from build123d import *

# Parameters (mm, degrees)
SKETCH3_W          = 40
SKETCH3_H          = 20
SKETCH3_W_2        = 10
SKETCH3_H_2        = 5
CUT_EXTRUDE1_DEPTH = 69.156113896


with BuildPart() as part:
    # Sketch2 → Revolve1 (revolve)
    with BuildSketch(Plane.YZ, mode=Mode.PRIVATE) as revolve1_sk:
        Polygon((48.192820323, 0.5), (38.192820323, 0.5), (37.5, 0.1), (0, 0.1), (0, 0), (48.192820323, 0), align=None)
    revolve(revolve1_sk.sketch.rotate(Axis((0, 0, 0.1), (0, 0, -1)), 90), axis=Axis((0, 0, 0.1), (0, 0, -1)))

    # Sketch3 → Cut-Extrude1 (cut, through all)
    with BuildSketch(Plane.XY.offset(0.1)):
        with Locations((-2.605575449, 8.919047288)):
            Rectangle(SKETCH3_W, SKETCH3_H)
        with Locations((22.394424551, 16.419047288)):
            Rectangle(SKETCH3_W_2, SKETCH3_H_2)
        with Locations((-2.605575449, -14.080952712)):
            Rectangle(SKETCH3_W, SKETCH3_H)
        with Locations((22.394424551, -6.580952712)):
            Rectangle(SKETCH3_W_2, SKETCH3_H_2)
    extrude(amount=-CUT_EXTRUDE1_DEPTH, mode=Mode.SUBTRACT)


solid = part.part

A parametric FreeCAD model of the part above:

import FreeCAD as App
import Part
import Sketcher
Q = App.Units.Quantity


def add_polygon(sketch, points):
    """Adds a closed chain of lines whose ends are joined by coincident constraints."""
    first, n = sketch.GeometryCount, len(points)
    for a, b in zip(points, points[1:] + points[:1]):
        sketch.addGeometry(Part.LineSegment(App.Vector(*a, 0), App.Vector(*b, 0)), False)
    for i in range(n):
        sketch.addConstraint(Sketcher.Constraint("Coincident", first + i, 2, first + (i + 1) % n, 1))

doc = App.newDocument("Part")
params = doc.addObject("Spreadsheet::Sheet", "Params")
for row, (alias, value) in enumerate([
    ("sketch1_width", "10 mm"),
    ("sketch1_width2", "37.5 mm"),
    ("sketch1_height", "0.1 mm"),
    ("sketch1_height2", "0.5 mm"),
    ("revolution_angle", "360 deg"),
    ("sketch2_width", "40 mm"),
    ("sketch2_width2", "10 mm"),
    ("sketch2_height", "20 mm"),
    ("sketch2_height2", "15 mm"),
], start=1):
    params.set(f"A{row}", alias)
    params.set(f"B{row}", "=" + value)
    params.setAlias(f"B{row}", alias)

body = doc.addObject("PartDesign::Body", "Body")

sketch1 = body.newObject("Sketcher::SketchObject", "Sketch")
sketch1.AttachmentSupport = (doc.getObject("YZ_Plane"), [""])
sketch1.MapMode = "FlatFace"
add_polygon(sketch1, [(48.19, 0.5), (38.19, 0.5), (37.5, 0.1), (0, 0.1), (0, 0), (48.19, 0)])
sketch1.addConstraint(Sketcher.Constraint("Horizontal", 0))
sketch1.addConstraint(Sketcher.Constraint("Horizontal", 2))
sketch1.addConstraint(Sketcher.Constraint("Vertical", 3))
sketch1.addConstraint(Sketcher.Constraint("Horizontal", 4))
sketch1.addConstraint(Sketcher.Constraint("Vertical", 5))
sketch1.addConstraint(Sketcher.Constraint("Coincident", 3, 2, -1, 1))
sketch1.addConstraint(Sketcher.Constraint("DistanceX", 0, 2, 0, 1, 10.0))
sketch1.addConstraint(Sketcher.Constraint("Angle", 1, Q("-150 deg")))
sketch1.addConstraint(Sketcher.Constraint("DistanceX", 2, 2, 2, 1, 37.5))
sketch1.addConstraint(Sketcher.Constraint("DistanceY", 3, 2, 3, 1, 0.1))
sketch1.addConstraint(Sketcher.Constraint("DistanceY", 5, 1, 5, 2, 0.5))
sketch1.setExpression("Constraints[12]", "Params.sketch1_width")
sketch1.setExpression("Constraints[14]", "Params.sketch1_width2")
sketch1.setExpression("Constraints[15]", "Params.sketch1_height")
sketch1.setExpression("Constraints[16]", "Params.sketch1_height2")
revolution = body.newObject("PartDesign::Revolution", "Revolution")
revolution.Profile = sketch1
revolution.ReferenceAxis = (sketch1, ["V_Axis"])
revolution.setExpression("Angle", "Params.revolution_angle")

sketch2 = body.newObject("Sketcher::SketchObject", "Sketch001")
sketch2.AttachmentSupport = (doc.getObject("XY_Plane"), [""])
sketch2.MapMode = "FlatFace"
sketch2.AttachmentOffset = App.Placement(App.Vector(0, 0, 0.1), App.Rotation())
add_polygon(sketch2, [(-23, 19), (-23, -1), (17, -1), (17, 14), (27, 14), (27, 19)])
add_polygon(sketch2, [(-23, -4), (-23, -24), (17, -24), (17, -9), (27, -9), (27, -4)])
sketch2.addConstraint(Sketcher.Constraint("Vertical", 0))
sketch2.addConstraint(Sketcher.Constraint("Horizontal", 1))
sketch2.addConstraint(Sketcher.Constraint("Vertical", 2))
sketch2.addConstraint(Sketcher.Constraint("Horizontal", 3))
sketch2.addConstraint(Sketcher.Constraint("Vertical", 4))
sketch2.addConstraint(Sketcher.Constraint("Horizontal", 5))
sketch2.addConstraint(Sketcher.Constraint("Vertical", 6))
sketch2.addConstraint(Sketcher.Constraint("Horizontal", 7))
sketch2.addConstraint(Sketcher.Constraint("Vertical", 8))
sketch2.addConstraint(Sketcher.Constraint("Horizontal", 9))
sketch2.addConstraint(Sketcher.Constraint("Vertical", 10))
sketch2.addConstraint(Sketcher.Constraint("Horizontal", 11))
sketch2.addConstraint(Sketcher.Constraint("Vertical", 5, 2, 6, 2))
sketch2.addConstraint(Sketcher.Constraint("Vertical", 2, 2, 7, 2))
sketch2.addConstraint(Sketcher.Constraint("Vertical", 4, 2, 9, 2))
sketch2.addConstraint(Sketcher.Constraint("Equal", 0, 6))
sketch2.addConstraint(Sketcher.Constraint("Equal", 2, 8))
sketch2.addConstraint(Sketcher.Constraint("DistanceX", 1, 1, 1, 2, 40.0))
sketch2.addConstraint(Sketcher.Constraint("DistanceX", 3, 1, 3, 2, 10.0))
sketch2.addConstraint(Sketcher.Constraint("DistanceY", 0, 2, 0, 1, 20.0))
sketch2.addConstraint(Sketcher.Constraint("DistanceY", 2, 1, 2, 2, 15.0))
sketch2.addConstraint(Sketcher.Constraint("DistanceY", 6, 2, 0, 2, 23.0))
sketch2.addConstraint(Sketcher.Constraint("DistanceX", 0, 2, -1, 1, 22.605575))
sketch2.addConstraint(Sketcher.Constraint("DistanceY", 0, 2, -1, 1, 1.080953))
sketch2.setExpression("Constraints[29]", "Params.sketch2_width")
sketch2.setExpression("Constraints[30]", "Params.sketch2_width2")
sketch2.setExpression("Constraints[31]", "Params.sketch2_height")
sketch2.setExpression("Constraints[32]", "Params.sketch2_height2")
pocket1 = body.newObject("PartDesign::Pocket", "Pocket")
pocket1.Profile = sketch2
pocket1.Type = "ThroughAll"

doc.recompute()
